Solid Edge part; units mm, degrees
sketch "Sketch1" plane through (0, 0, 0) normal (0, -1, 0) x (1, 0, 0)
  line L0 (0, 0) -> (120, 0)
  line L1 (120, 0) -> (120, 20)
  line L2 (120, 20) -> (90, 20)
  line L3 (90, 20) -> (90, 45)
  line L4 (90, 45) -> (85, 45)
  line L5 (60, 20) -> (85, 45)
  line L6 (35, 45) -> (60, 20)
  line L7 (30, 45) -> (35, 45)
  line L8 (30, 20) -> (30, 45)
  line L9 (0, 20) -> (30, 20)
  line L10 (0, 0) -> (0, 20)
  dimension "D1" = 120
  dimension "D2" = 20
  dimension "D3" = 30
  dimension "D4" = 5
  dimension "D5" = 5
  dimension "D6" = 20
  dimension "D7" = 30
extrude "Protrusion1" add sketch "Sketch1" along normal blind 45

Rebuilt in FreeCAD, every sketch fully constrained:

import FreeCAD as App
import Part
import Sketcher

V = App.Vector
Q = App.Units.Quantity

doc = App.newDocument("Part")
body = doc.addObject("PartDesign::Body", "Body")

sketch1 = body.newObject("Sketcher::SketchObject", "Sketch")
sketch1.AttachmentSupport = (doc.getObject("XZ_Plane"), [""])
sketch1.MapMode = "FlatFace"
sketch1.addGeometry([
    Part.LineSegment(V(0, 20, 0), V(0, 0, 0)),
    Part.LineSegment(V(0, 0, 0), V(120, 0, 0)),
    Part.LineSegment(V(120, 0, 0), V(120, 20, 0)),
    Part.LineSegment(V(120, 20, 0), V(90, 20, 0)),
    Part.LineSegment(V(90, 20, 0), V(90, 45, 0)),
    Part.LineSegment(V(90, 45, 0), V(85, 45, 0)),
    Part.LineSegment(V(85, 45, 0), V(60, 20, 0)),
    Part.LineSegment(V(60, 20, 0), V(35, 45, 0)),
    Part.LineSegment(V(35, 45, 0), V(30, 45, 0)),
    Part.LineSegment(V(30, 45, 0), V(30, 20, 0)),
    Part.LineSegment(V(30, 20, 0), V(0, 20, 0)),
], False)
sketch1.addConstraint([
    Sketcher.Constraint("Coincident", 0, 2, 1, 1),
    Sketcher.Constraint("Coincident", 1, 2, 2, 1),
    Sketcher.Constraint("Coincident", 2, 2, 3, 1),
    Sketcher.Constraint("Coincident", 3, 2, 4, 1),
    Sketcher.Constraint("Coincident", 4, 2, 5, 1),
    Sketcher.Constraint("Coincident", 5, 2, 6, 1),
    Sketcher.Constraint("Coincident", 6, 2, 7, 1),
    Sketcher.Constraint("Coincident", 7, 2, 8, 1),
    Sketcher.Constraint("Coincident", 8, 2, 9, 1),
    Sketcher.Constraint("Coincident", 9, 2, 10, 1),
    Sketcher.Constraint("Coincident", 10, 2, 0, 1),
    Sketcher.Constraint("Vertical", 0),
    Sketcher.Constraint("Horizontal", 1),
    Sketcher.Constraint("Vertical", 2),
    Sketcher.Constraint("Horizontal", 3),
    Sketcher.Constraint("Vertical", 4),
    Sketcher.Constraint("Horizontal", 5),
    Sketcher.Constraint("Horizontal", 8),
    Sketcher.Constraint("Vertical", 9),
    Sketcher.Constraint("Horizontal", 10),
    Sketcher.Constraint("Coincident", 0, 2, -1, 1),
    Sketcher.Constraint("Perpendicular", 6, 7),
    Sketcher.Constraint("Horizontal", 3, 2, 6, 2),
    Sketcher.Constraint("Horizontal", 5, 2, 7, 2),
    Sketcher.Constraint("Horizontal", 6, 2, 9, 2),
    Sketcher.Constraint("Equal", 5, 8),
    Sketcher.Constraint("Equal", 3, 10),
    Sketcher.Constraint("Equal", 6, 7),
    Sketcher.Constraint("DistanceX", 1, 1, 1, 2, Q("120 mm")),
    Sketcher.Constraint("DistanceX", 3, 2, 3, 1, Q("30 mm")),
    Sketcher.Constraint("DistanceX", 5, 2, 5, 1, Q("5 mm")),
    Sketcher.Constraint("DistanceY", 0, 2, 0, 1, Q("20 mm")),
])
pad1 = body.newObject("PartDesign::Pad", "Pad")
pad1.Profile = sketch1
pad1.Length = 45

doc.recompute()
